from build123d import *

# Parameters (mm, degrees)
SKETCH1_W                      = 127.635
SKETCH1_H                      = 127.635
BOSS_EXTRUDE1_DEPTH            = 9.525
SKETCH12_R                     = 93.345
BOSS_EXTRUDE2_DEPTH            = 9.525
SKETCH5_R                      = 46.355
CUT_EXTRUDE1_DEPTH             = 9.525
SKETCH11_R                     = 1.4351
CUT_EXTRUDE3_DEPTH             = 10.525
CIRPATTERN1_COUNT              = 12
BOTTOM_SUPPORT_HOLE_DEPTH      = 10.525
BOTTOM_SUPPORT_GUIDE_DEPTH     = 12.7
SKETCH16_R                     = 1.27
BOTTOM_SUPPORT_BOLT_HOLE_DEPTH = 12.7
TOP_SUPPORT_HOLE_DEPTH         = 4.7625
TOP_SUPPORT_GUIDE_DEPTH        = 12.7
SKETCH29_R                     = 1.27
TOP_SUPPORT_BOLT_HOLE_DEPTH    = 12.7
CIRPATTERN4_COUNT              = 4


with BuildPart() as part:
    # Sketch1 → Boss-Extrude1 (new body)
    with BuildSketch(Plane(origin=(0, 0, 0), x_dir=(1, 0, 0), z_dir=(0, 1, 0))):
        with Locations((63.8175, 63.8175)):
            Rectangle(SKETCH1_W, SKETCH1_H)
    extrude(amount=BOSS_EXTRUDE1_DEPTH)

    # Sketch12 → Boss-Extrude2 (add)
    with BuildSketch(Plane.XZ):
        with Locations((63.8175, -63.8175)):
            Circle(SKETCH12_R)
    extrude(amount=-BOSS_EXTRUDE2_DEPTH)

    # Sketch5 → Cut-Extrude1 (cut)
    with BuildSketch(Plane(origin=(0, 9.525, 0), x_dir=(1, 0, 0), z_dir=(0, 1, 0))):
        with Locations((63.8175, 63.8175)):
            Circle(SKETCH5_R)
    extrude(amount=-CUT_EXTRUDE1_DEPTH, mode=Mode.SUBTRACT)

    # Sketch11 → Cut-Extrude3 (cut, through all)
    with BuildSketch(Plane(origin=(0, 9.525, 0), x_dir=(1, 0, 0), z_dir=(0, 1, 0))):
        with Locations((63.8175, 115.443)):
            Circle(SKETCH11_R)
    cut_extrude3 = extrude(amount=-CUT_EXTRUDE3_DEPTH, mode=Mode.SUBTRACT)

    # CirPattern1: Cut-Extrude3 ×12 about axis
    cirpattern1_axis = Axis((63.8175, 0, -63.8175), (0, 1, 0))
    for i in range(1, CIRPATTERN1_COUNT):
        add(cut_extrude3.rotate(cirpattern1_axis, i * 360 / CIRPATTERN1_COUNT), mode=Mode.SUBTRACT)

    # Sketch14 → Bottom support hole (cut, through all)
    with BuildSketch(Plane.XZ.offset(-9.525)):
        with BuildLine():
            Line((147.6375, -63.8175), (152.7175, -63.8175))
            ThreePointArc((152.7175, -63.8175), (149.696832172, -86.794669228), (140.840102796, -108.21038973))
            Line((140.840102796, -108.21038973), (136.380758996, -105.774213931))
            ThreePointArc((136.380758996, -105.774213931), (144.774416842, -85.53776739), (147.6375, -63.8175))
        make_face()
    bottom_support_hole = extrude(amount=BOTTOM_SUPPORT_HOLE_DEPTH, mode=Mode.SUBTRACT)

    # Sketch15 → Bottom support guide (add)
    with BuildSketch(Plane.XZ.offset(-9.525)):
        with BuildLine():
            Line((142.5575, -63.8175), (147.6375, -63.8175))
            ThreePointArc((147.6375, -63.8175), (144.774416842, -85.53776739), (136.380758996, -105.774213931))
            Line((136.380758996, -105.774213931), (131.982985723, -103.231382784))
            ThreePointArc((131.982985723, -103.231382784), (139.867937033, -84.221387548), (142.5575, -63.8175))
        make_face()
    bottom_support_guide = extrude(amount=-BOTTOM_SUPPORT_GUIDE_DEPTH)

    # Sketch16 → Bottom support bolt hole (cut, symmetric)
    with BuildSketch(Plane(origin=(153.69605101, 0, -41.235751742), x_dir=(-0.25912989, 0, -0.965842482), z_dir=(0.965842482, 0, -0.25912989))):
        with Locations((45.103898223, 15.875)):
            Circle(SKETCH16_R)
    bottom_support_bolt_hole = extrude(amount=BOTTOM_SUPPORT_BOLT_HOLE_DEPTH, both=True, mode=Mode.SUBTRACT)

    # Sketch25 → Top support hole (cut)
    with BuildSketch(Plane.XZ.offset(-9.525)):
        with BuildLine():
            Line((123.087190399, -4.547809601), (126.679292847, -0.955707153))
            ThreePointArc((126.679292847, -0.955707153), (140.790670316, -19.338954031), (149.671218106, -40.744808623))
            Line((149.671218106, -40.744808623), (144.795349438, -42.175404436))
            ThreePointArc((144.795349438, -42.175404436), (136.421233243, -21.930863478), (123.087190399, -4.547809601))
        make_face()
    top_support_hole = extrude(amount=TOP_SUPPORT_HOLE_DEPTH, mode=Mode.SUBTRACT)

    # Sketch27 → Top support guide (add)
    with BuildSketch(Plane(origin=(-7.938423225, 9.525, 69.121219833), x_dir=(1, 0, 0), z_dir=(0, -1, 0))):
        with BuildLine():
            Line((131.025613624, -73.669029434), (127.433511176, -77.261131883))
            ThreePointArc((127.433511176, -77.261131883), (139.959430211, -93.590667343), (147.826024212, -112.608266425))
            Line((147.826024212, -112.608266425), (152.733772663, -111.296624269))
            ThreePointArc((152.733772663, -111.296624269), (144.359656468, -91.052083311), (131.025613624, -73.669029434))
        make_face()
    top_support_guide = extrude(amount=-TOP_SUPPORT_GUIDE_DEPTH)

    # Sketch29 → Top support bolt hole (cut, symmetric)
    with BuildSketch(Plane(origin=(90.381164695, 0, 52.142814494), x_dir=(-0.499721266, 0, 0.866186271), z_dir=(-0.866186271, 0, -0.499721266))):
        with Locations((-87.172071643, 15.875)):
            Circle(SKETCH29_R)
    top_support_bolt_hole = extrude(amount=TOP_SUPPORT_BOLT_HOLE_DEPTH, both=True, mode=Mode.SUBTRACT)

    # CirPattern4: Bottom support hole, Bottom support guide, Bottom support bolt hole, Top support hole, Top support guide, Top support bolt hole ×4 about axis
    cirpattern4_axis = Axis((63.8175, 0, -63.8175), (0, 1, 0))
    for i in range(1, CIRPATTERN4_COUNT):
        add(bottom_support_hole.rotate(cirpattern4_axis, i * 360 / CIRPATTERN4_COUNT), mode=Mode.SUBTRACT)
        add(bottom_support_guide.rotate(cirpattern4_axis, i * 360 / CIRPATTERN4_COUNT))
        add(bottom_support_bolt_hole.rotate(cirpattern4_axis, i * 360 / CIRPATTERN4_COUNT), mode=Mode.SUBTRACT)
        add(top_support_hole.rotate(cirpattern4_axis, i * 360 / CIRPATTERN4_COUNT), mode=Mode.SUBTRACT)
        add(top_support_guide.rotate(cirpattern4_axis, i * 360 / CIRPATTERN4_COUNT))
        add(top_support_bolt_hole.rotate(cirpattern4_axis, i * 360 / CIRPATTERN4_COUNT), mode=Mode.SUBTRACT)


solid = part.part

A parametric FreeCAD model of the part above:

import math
import FreeCAD as App
import Part
import Sketcher
from FreeCAD import Vector
Q = App.Units.Quantity

doc = App.newDocument("Part")
body = doc.addObject("PartDesign::Body", "Body")

sketch1 = body.newObject("Sketcher::SketchObject", "Sketch")
sketch1.AttachmentSupport = (doc.getObject("XZ_Plane"), [""])
sketch1.MapMode = "FlatFace"
sketch1.addGeometry([
    Part.LineSegment(Vector(0, -127.635, 0), Vector(0, 0, 0)),
    Part.LineSegment(Vector(0, 0, 0), Vector(127.635, 0, 0)),
    Part.LineSegment(Vector(127.635, 0, 0), Vector(127.635, -127.635, 0)),
    Part.LineSegment(Vector(127.635, -127.635, 0), Vector(0, -127.635, 0)),
], False)
sketch1.addConstraint([
    Sketcher.Constraint("Coincident", 0, 2, 1, 1),
    Sketcher.Constraint("Coincident", 1, 2, 2, 1),
    Sketcher.Constraint("Coincident", 2, 2, 3, 1),
    Sketcher.Constraint("Coincident", 3, 2, 0, 1),
    Sketcher.Constraint("Vertical", 0),
    Sketcher.Constraint("Horizontal", 1),
    Sketcher.Constraint("Vertical", 2),
    Sketcher.Constraint("Horizontal", 3),
    Sketcher.Constraint("Coincident", 0, 2, -1, 1),
    Sketcher.Constraint("Equal", 3, 0),
    Sketcher.Constraint("DistanceX", 1, 1, 1, 2, Q("5.025 in")),
])
pad1 = body.newObject("PartDesign::Pad", "Pad")
pad1.Profile = sketch1
pad1.Length = Q("0.375 in")
pad1.Reversed = True

sketch2 = body.newObject("Sketcher::SketchObject", "Sketch001")
sketch2.AttachmentSupport = (doc.getObject("XZ_Plane"), [""])
sketch2.MapMode = "FlatFace"
sketch2.addGeometry(Part.Circle(Vector(63.8175, -63.8175, 0), Vector(0, 0, 1), 93.345), False)
sketch2.addConstraint([
    Sketcher.Constraint("Diameter", 0, Q("7.35 in")),
    Sketcher.Constraint("DistanceX", -1, 1, 0, 3, Q("2.5125 in")),
    Sketcher.Constraint("DistanceY", 0, 3, -1, 1, Q("2.5125 in")),
])
pad2 = body.newObject("PartDesign::Pad", "Pad001")
pad2.Profile = sketch2
pad2.Length = Q("0.375 in")
pad2.Reversed = True

sketch3 = body.newObject("Sketcher::SketchObject", "Sketch002")
sketch3.AttachmentSupport = (doc.getObject("XZ_Plane"), [""])
sketch3.MapMode = "FlatFace"
sketch3.AttachmentOffset = App.Placement(Vector(0, 0, -0.375 * 25.4), App.Rotation())
sketch3.addGeometry(Part.Circle(Vector(63.8175, -63.8175, 0), Vector(0, 0, 1), 46.355), False)
sketch3.addConstraint([
    Sketcher.Constraint("Diameter", 0, Q("3.65 in")),
    Sketcher.Constraint("DistanceX", -1, 1, 0, 3, Q("2.5125 in")),
    Sketcher.Constraint("DistanceY", 0, 3, -1, 1, Q("2.5125 in")),
])
pocket1 = body.newObject("PartDesign::Pocket", "Pocket")
pocket1.Profile = sketch3
pocket1.Length = Q("0.375 in")
pocket1.Reversed = True

sketch4 = body.newObject("Sketcher::SketchObject", "Sketch003")
sketch4.AttachmentSupport = (doc.getObject("XZ_Plane"), [""])
sketch4.MapMode = "FlatFace"
sketch4.AttachmentOffset = App.Placement(Vector(0, 0, -0.375 * 25.4), App.Rotation())
sketch4.addGeometry(Part.Circle(Vector(63.8175, -115.443, 0), Vector(0, 0, 1), 1.4351), False)
sketch4.addConstraint([
    Sketcher.Constraint("Diameter", 0, Q("0.113 in")),
    Sketcher.Constraint("DistanceY", 0, 3, -1, 1, Q("4.545 in")),
    Sketcher.Constraint("DistanceX", -1, 1, 0, 3, Q("2.5125 in")),
])
pocket2 = body.newObject("PartDesign::Pocket", "Pocket001")
pocket2.Profile = sketch4
pocket2.Type = "ThroughAll"
pocket2.Reversed = True
doc.recompute()

datumline = body.newObject("PartDesign::Line", "DatumLine")
datumline.Placement = App.Placement(Vector(63.8175, 0, -63.8175), App.Rotation(Vector(0, 0, 1), Vector(0, 1, 0)))
polarpattern = body.newObject("PartDesign::PolarPattern", "PolarPattern")
polarpattern.Originals = [pocket2]
polarpattern.Axis = (datumline, [""])
polarpattern.Angle = 360
polarpattern.Occurrences = 12
body.Tip = polarpattern

sketch5 = body.newObject("Sketcher::SketchObject", "Sketch004")
sketch5.AttachmentSupport = (doc.getObject("XZ_Plane"), [""])
sketch5.MapMode = "FlatFace"
sketch5.AttachmentOffset = App.Placement(Vector(0, 0, -0.375 * 25.4), App.Rotation())
sketch5.addGeometry([
    Part.LineSegment(Vector(152.7175, -63.8175, 0), Vector(147.6375, -63.8175, 0)),
    Part.ArcOfCircle(Part.Circle(Vector(63.8175, -63.8175, 0), Vector(0, 0, 1), 83.82), math.radians(-30.036878), math.radians(0)),
    Part.LineSegment(Vector(136.380759, -105.774214, 0), Vector(140.840103, -108.21039, 0)),
    Part.ArcOfCircle(Part.Circle(Vector(63.8175, -63.8175, 0), Vector(0, 0, 1), 88.9), math.radians(-29.957508), math.radians(0)),
], False)
sketch5.addConstraint([
    Sketcher.Constraint("Coincident", 0, 2, 1, 2),
    Sketcher.Constraint("Coincident", 1, 1, 2, 1),
    Sketcher.Constraint("Coincident", 2, 2, 3, 1),
    Sketcher.Constraint("Coincident", 3, 2, 0, 1),
    Sketcher.Constraint("Horizontal", 0),
    Sketcher.Constraint("Coincident", 3, 3, 1, 3),
    Sketcher.Constraint("Horizontal", 3, 3, 0, 2),
    Sketcher.Constraint("Radius", 1, Q("3.3 in")),
    Sketcher.Constraint("Radius", 3, Q("3.5 in")),
    Sketcher.Constraint("DistanceX", -1, 1, 0, 2, Q("5.8125 in")),
    Sketcher.Constraint("DistanceY", 1, 3, -1, 1, Q("2.5125 in")),
    Sketcher.Constraint("DistanceX", -1, 1, 1, 1, Q("136.380759 mm")),
    Sketcher.Constraint("DistanceY", 2, 2, -1, 1, Q("108.21039 mm")),
])
pocket3 = body.newObject("PartDesign::Pocket", "Pocket002")
pocket3.Profile = sketch5
pocket3.Type = "ThroughAll"
pocket3.Reversed = True

sketch6 = body.newObject("Sketcher::SketchObject", "Sketch005")
sketch6.AttachmentSupport = (doc.getObject("XZ_Plane"), [""])
sketch6.MapMode = "FlatFace"
sketch6.AttachmentOffset = App.Placement(Vector(0, 0, -0.375 * 25.4), App.Rotation())
sketch6.addGeometry([
    Part.LineSegment(Vector(147.6375, -63.8175, 0), Vector(142.5575, -63.8175, 0)),
    Part.ArcOfCircle(Part.Circle(Vector(63.8175, -63.8175, 0), Vector(0, 0, 1), 78.74), math.radians(-30.036878), math.radians(0)),
    Part.LineSegment(Vector(131.982986, -103.231383, 0), Vector(136.380759, -105.774214, 0)),
    Part.ArcOfCircle(Part.Circle(Vector(63.8175, -63.8175, 0), Vector(0, 0, 1), 83.82), math.radians(-30.036878), math.radians(0)),
], False)
sketch6.addConstraint([
    Sketcher.Constraint("Coincident", 0, 2, 1, 2),
    Sketcher.Constraint("Coincident", 1, 1, 2, 1),
    Sketcher.Constraint("Coincident", 2, 2, 3, 1),
    Sketcher.Constraint("Coincident", 3, 2, 0, 1),
    Sketcher.Constraint("Horizontal", 0),
    Sketcher.Constraint("Coincident", 3, 3, 1, 3),
    Sketcher.Constraint("Horizontal", 3, 3, 0, 2),
    Sketcher.Constraint("Radius", 1, Q("3.1 in")),
    Sketcher.Constraint("Radius", 3, Q("3.3 in")),
    Sketcher.Constraint("DistanceX", -1, 1, 3, 2, Q("5.8125 in")),
    Sketcher.Constraint("DistanceY", 1, 3, -1, 1, Q("2.5125 in")),
    Sketcher.Constraint("DistanceX", -1, 1, 2, 2, Q("136.380759 mm")),
    Sketcher.Constraint("DistanceY", 2, 2, 1, 1, Q("2.542831 mm")),
])
pad3 = body.newObject("PartDesign::Pad", "Pad002")
pad3.Profile = sketch6
pad3.Length = Q("0.5 in")
pad3.Reversed = True

sketch7 = body.newObject("Sketcher::SketchObject", "Sketch006")
sketch7.Placement = App.Placement(Vector(153.696051, 0, -41.235752), App.Rotation(Vector(-0.25912989, 0, -0.965842482), Vector(0, 1, 0), Vector(0.965842482, 0, -0.25912989), "ZXY"))
sketch7.addGeometry(Part.Circle(Vector(45.103898, 15.875, 0), Vector(0, 0, 1), 1.27), False)
sketch7.addConstraint([
    Sketcher.Constraint("Diameter", 0, Q("0.1 in")),
    Sketcher.Constraint("DistanceY", -1, 1, 0, 3, Q("0.625 in")),
    Sketcher.Constraint("DistanceX", -1, 1, 0, 3, Q("45.103898 mm")),
])
pocket4 = body.newObject("PartDesign::Pocket", "Pocket003")
pocket4.Profile = sketch7
pocket4.Length = Q("1 in")
pocket4.Midplane = True

sketch8 = body.newObject("Sketcher::SketchObject", "Sketch007")
sketch8.AttachmentSupport = (doc.getObject("XZ_Plane"), [""])
sketch8.MapMode = "FlatFace"
sketch8.AttachmentOffset = App.Placement(Vector(0, 0, -0.375 * 25.4), App.Rotation())
sketch8.addGeometry([
    Part.LineSegment(Vector(126.679293, -0.955707, 0), Vector(123.08719, -4.54781, 0)),
    Part.ArcOfCircle(Part.Circle(Vector(63.8175, -63.8175, 0), Vector(0, 0, 1), 83.82), math.radians(14.963122), math.radians(45)),
    Part.LineSegment(Vector(144.795349, -42.175404, 0), Vector(149.671218, -40.744809, 0)),
    Part.ArcOfCircle(Part.Circle(Vector(63.8175, -63.8175, 0), Vector(0, 0, 1), 88.9), math.radians(15.042492), math.radians(45)),
], False)
sketch8.addConstraint([
    Sketcher.Constraint("Coincident", 0, 2, 1, 2),
    Sketcher.Constraint("Coincident", 1, 1, 2, 1),
    Sketcher.Constraint("Coincident", 2, 2, 3, 1),
    Sketcher.Constraint("Coincident", 3, 2, 0, 1),
    Sketcher.Constraint("Coincident", 3, 3, 1, 3),
    Sketcher.Constraint("Radius", 1, Q("3.3 in")),
    Sketcher.Constraint("Radius", 3, Q("3.5 in")),
    Sketcher.Constraint("Angle", 0, Q("-135 deg")),
    Sketcher.Constraint("DistanceX", -1, 1, 1, 3, Q("2.5125 in")),
    Sketcher.Constraint("DistanceY", 1, 3, -1, 1, Q("2.5125 in")),
    Sketcher.Constraint("DistanceY", 2, 2, 3, 2, Q("1.5665001 in")),
    Sketcher.Constraint("DistanceX", -1, 1, 0, 2, Q("123.08719 mm")),
    Sketcher.Constraint("DistanceX", -1, 1, 1, 1, Q("144.795349 mm")),
])
pocket5 = body.newObject("PartDesign::Pocket", "Pocket004")
pocket5.Profile = sketch8
pocket5.Length = Q("0.1875 in")
pocket5.Reversed = True

sketch9 = body.newObject("Sketcher::SketchObject", "Sketch008")
sketch9.AttachmentSupport = (doc.getObject("XZ_Plane"), [""])
sketch9.MapMode = "FlatFace"
sketch9.AttachmentOffset = App.Placement(Vector(0, 0, -0.375 * 25.4), App.Rotation())
sketch9.addGeometry([
    Part.LineSegment(Vector(123.08719, -4.54781, 0), Vector(119.495088, -8.139912, 0)),
    Part.ArcOfCircle(Part.Circle(Vector(63.8175, -63.8175, 0), Vector(0, 0, 1), 78.74), math.radians(14.963122), math.radians(45)),
    Part.LineSegment(Vector(139.887601, -43.487047, 0), Vector(144.795349, -42.175404, 0)),
    Part.ArcOfCircle(Part.Circle(Vector(63.8175, -63.8175, 0), Vector(0, 0, 1), 83.82), math.radians(14.963122), math.radians(45)),
], False)
sketch9.addConstraint([
    Sketcher.Constraint("Coincident", 0, 2, 1, 2),
    Sketcher.Constraint("Coincident", 1, 1, 2, 1),
    Sketcher.Constraint("Coincident", 2, 2, 3, 1),
    Sketcher.Constraint("Coincident", 3, 2, 0, 1),
    Sketcher.Constraint("Coincident", 3, 3, 1, 3),
    Sketcher.Constraint("Radius", 1, Q("3.1 in")),
    Sketcher.Constraint("Radius", 3, Q("3.3 in")),
    Sketcher.Constraint("Angle", 0, Q("-135 deg")),
    Sketcher.Constraint("DistanceX", -1, 1, 1, 3, Q("2.5125 in")),
    Sketcher.Constraint("DistanceY", 1, 3, -1, 1, Q("2.5125 in")),
    Sketcher.Constraint("DistanceX", -1, 1, 1, 1, Q("139.887601 mm")),
    Sketcher.Constraint("DistanceX", -1, 1, 2, 2, Q("144.795349 mm")),
    Sketcher.Constraint("DistanceX", -1, 1, 3, 2, Q("123.08719 mm")),
])
pad4 = body.newObject("PartDesign::Pad", "Pad003")
pad4.Profile = sketch9
pad4.Length = Q("0.5 in")
pad4.Reversed = True

sketch10 = body.newObject("Sketcher::SketchObject", "Sketch009")
sketch10.Placement = App.Placement(Vector(90.381165, 0, 52.142814), App.Rotation(Vector(-0.499721266, 0, 0.866186271), Vector(0, 1, 0), Vector(-0.866186271, 0, -0.499721266), "ZXY"))
sketch10.addGeometry(Part.Circle(Vector(-87.172072, 15.875, 0), Vector(0, 0, 1), 1.27), False)
sketch10.addConstraint([
    Sketcher.Constraint("Diameter", 0, Q("0.1 in")),
    Sketcher.Constraint("DistanceY", -1, 1, 0, 3, Q("0.625 in")),
    Sketcher.Constraint("DistanceX", 0, 3, -1, 1, Q("87.172072 mm")),
])
pocket6 = body.newObject("PartDesign::Pocket", "Pocket005")
pocket6.Profile = sketch10
pocket6.Length = Q("1 in")
pocket6.Midplane = True
doc.recompute()

datumline2 = body.newObject("PartDesign::Line", "DatumLine001")
datumline2.Placement = App.Placement(Vector(63.8175, 0, -63.8175), App.Rotation(Vector(0, 0, 1), Vector(0, 1, 0)))
polarpattern2 = body.newObject("PartDesign::PolarPattern", "PolarPattern001")
polarpattern2.Originals = [pocket3, pad3, pocket4, pocket5, pad4, pocket6]
polarpattern2.Axis = (datumline2, [""])
polarpattern2.Angle = 360
polarpattern2.Occurrences = 4
body.Tip = polarpattern2

doc.recompute()
